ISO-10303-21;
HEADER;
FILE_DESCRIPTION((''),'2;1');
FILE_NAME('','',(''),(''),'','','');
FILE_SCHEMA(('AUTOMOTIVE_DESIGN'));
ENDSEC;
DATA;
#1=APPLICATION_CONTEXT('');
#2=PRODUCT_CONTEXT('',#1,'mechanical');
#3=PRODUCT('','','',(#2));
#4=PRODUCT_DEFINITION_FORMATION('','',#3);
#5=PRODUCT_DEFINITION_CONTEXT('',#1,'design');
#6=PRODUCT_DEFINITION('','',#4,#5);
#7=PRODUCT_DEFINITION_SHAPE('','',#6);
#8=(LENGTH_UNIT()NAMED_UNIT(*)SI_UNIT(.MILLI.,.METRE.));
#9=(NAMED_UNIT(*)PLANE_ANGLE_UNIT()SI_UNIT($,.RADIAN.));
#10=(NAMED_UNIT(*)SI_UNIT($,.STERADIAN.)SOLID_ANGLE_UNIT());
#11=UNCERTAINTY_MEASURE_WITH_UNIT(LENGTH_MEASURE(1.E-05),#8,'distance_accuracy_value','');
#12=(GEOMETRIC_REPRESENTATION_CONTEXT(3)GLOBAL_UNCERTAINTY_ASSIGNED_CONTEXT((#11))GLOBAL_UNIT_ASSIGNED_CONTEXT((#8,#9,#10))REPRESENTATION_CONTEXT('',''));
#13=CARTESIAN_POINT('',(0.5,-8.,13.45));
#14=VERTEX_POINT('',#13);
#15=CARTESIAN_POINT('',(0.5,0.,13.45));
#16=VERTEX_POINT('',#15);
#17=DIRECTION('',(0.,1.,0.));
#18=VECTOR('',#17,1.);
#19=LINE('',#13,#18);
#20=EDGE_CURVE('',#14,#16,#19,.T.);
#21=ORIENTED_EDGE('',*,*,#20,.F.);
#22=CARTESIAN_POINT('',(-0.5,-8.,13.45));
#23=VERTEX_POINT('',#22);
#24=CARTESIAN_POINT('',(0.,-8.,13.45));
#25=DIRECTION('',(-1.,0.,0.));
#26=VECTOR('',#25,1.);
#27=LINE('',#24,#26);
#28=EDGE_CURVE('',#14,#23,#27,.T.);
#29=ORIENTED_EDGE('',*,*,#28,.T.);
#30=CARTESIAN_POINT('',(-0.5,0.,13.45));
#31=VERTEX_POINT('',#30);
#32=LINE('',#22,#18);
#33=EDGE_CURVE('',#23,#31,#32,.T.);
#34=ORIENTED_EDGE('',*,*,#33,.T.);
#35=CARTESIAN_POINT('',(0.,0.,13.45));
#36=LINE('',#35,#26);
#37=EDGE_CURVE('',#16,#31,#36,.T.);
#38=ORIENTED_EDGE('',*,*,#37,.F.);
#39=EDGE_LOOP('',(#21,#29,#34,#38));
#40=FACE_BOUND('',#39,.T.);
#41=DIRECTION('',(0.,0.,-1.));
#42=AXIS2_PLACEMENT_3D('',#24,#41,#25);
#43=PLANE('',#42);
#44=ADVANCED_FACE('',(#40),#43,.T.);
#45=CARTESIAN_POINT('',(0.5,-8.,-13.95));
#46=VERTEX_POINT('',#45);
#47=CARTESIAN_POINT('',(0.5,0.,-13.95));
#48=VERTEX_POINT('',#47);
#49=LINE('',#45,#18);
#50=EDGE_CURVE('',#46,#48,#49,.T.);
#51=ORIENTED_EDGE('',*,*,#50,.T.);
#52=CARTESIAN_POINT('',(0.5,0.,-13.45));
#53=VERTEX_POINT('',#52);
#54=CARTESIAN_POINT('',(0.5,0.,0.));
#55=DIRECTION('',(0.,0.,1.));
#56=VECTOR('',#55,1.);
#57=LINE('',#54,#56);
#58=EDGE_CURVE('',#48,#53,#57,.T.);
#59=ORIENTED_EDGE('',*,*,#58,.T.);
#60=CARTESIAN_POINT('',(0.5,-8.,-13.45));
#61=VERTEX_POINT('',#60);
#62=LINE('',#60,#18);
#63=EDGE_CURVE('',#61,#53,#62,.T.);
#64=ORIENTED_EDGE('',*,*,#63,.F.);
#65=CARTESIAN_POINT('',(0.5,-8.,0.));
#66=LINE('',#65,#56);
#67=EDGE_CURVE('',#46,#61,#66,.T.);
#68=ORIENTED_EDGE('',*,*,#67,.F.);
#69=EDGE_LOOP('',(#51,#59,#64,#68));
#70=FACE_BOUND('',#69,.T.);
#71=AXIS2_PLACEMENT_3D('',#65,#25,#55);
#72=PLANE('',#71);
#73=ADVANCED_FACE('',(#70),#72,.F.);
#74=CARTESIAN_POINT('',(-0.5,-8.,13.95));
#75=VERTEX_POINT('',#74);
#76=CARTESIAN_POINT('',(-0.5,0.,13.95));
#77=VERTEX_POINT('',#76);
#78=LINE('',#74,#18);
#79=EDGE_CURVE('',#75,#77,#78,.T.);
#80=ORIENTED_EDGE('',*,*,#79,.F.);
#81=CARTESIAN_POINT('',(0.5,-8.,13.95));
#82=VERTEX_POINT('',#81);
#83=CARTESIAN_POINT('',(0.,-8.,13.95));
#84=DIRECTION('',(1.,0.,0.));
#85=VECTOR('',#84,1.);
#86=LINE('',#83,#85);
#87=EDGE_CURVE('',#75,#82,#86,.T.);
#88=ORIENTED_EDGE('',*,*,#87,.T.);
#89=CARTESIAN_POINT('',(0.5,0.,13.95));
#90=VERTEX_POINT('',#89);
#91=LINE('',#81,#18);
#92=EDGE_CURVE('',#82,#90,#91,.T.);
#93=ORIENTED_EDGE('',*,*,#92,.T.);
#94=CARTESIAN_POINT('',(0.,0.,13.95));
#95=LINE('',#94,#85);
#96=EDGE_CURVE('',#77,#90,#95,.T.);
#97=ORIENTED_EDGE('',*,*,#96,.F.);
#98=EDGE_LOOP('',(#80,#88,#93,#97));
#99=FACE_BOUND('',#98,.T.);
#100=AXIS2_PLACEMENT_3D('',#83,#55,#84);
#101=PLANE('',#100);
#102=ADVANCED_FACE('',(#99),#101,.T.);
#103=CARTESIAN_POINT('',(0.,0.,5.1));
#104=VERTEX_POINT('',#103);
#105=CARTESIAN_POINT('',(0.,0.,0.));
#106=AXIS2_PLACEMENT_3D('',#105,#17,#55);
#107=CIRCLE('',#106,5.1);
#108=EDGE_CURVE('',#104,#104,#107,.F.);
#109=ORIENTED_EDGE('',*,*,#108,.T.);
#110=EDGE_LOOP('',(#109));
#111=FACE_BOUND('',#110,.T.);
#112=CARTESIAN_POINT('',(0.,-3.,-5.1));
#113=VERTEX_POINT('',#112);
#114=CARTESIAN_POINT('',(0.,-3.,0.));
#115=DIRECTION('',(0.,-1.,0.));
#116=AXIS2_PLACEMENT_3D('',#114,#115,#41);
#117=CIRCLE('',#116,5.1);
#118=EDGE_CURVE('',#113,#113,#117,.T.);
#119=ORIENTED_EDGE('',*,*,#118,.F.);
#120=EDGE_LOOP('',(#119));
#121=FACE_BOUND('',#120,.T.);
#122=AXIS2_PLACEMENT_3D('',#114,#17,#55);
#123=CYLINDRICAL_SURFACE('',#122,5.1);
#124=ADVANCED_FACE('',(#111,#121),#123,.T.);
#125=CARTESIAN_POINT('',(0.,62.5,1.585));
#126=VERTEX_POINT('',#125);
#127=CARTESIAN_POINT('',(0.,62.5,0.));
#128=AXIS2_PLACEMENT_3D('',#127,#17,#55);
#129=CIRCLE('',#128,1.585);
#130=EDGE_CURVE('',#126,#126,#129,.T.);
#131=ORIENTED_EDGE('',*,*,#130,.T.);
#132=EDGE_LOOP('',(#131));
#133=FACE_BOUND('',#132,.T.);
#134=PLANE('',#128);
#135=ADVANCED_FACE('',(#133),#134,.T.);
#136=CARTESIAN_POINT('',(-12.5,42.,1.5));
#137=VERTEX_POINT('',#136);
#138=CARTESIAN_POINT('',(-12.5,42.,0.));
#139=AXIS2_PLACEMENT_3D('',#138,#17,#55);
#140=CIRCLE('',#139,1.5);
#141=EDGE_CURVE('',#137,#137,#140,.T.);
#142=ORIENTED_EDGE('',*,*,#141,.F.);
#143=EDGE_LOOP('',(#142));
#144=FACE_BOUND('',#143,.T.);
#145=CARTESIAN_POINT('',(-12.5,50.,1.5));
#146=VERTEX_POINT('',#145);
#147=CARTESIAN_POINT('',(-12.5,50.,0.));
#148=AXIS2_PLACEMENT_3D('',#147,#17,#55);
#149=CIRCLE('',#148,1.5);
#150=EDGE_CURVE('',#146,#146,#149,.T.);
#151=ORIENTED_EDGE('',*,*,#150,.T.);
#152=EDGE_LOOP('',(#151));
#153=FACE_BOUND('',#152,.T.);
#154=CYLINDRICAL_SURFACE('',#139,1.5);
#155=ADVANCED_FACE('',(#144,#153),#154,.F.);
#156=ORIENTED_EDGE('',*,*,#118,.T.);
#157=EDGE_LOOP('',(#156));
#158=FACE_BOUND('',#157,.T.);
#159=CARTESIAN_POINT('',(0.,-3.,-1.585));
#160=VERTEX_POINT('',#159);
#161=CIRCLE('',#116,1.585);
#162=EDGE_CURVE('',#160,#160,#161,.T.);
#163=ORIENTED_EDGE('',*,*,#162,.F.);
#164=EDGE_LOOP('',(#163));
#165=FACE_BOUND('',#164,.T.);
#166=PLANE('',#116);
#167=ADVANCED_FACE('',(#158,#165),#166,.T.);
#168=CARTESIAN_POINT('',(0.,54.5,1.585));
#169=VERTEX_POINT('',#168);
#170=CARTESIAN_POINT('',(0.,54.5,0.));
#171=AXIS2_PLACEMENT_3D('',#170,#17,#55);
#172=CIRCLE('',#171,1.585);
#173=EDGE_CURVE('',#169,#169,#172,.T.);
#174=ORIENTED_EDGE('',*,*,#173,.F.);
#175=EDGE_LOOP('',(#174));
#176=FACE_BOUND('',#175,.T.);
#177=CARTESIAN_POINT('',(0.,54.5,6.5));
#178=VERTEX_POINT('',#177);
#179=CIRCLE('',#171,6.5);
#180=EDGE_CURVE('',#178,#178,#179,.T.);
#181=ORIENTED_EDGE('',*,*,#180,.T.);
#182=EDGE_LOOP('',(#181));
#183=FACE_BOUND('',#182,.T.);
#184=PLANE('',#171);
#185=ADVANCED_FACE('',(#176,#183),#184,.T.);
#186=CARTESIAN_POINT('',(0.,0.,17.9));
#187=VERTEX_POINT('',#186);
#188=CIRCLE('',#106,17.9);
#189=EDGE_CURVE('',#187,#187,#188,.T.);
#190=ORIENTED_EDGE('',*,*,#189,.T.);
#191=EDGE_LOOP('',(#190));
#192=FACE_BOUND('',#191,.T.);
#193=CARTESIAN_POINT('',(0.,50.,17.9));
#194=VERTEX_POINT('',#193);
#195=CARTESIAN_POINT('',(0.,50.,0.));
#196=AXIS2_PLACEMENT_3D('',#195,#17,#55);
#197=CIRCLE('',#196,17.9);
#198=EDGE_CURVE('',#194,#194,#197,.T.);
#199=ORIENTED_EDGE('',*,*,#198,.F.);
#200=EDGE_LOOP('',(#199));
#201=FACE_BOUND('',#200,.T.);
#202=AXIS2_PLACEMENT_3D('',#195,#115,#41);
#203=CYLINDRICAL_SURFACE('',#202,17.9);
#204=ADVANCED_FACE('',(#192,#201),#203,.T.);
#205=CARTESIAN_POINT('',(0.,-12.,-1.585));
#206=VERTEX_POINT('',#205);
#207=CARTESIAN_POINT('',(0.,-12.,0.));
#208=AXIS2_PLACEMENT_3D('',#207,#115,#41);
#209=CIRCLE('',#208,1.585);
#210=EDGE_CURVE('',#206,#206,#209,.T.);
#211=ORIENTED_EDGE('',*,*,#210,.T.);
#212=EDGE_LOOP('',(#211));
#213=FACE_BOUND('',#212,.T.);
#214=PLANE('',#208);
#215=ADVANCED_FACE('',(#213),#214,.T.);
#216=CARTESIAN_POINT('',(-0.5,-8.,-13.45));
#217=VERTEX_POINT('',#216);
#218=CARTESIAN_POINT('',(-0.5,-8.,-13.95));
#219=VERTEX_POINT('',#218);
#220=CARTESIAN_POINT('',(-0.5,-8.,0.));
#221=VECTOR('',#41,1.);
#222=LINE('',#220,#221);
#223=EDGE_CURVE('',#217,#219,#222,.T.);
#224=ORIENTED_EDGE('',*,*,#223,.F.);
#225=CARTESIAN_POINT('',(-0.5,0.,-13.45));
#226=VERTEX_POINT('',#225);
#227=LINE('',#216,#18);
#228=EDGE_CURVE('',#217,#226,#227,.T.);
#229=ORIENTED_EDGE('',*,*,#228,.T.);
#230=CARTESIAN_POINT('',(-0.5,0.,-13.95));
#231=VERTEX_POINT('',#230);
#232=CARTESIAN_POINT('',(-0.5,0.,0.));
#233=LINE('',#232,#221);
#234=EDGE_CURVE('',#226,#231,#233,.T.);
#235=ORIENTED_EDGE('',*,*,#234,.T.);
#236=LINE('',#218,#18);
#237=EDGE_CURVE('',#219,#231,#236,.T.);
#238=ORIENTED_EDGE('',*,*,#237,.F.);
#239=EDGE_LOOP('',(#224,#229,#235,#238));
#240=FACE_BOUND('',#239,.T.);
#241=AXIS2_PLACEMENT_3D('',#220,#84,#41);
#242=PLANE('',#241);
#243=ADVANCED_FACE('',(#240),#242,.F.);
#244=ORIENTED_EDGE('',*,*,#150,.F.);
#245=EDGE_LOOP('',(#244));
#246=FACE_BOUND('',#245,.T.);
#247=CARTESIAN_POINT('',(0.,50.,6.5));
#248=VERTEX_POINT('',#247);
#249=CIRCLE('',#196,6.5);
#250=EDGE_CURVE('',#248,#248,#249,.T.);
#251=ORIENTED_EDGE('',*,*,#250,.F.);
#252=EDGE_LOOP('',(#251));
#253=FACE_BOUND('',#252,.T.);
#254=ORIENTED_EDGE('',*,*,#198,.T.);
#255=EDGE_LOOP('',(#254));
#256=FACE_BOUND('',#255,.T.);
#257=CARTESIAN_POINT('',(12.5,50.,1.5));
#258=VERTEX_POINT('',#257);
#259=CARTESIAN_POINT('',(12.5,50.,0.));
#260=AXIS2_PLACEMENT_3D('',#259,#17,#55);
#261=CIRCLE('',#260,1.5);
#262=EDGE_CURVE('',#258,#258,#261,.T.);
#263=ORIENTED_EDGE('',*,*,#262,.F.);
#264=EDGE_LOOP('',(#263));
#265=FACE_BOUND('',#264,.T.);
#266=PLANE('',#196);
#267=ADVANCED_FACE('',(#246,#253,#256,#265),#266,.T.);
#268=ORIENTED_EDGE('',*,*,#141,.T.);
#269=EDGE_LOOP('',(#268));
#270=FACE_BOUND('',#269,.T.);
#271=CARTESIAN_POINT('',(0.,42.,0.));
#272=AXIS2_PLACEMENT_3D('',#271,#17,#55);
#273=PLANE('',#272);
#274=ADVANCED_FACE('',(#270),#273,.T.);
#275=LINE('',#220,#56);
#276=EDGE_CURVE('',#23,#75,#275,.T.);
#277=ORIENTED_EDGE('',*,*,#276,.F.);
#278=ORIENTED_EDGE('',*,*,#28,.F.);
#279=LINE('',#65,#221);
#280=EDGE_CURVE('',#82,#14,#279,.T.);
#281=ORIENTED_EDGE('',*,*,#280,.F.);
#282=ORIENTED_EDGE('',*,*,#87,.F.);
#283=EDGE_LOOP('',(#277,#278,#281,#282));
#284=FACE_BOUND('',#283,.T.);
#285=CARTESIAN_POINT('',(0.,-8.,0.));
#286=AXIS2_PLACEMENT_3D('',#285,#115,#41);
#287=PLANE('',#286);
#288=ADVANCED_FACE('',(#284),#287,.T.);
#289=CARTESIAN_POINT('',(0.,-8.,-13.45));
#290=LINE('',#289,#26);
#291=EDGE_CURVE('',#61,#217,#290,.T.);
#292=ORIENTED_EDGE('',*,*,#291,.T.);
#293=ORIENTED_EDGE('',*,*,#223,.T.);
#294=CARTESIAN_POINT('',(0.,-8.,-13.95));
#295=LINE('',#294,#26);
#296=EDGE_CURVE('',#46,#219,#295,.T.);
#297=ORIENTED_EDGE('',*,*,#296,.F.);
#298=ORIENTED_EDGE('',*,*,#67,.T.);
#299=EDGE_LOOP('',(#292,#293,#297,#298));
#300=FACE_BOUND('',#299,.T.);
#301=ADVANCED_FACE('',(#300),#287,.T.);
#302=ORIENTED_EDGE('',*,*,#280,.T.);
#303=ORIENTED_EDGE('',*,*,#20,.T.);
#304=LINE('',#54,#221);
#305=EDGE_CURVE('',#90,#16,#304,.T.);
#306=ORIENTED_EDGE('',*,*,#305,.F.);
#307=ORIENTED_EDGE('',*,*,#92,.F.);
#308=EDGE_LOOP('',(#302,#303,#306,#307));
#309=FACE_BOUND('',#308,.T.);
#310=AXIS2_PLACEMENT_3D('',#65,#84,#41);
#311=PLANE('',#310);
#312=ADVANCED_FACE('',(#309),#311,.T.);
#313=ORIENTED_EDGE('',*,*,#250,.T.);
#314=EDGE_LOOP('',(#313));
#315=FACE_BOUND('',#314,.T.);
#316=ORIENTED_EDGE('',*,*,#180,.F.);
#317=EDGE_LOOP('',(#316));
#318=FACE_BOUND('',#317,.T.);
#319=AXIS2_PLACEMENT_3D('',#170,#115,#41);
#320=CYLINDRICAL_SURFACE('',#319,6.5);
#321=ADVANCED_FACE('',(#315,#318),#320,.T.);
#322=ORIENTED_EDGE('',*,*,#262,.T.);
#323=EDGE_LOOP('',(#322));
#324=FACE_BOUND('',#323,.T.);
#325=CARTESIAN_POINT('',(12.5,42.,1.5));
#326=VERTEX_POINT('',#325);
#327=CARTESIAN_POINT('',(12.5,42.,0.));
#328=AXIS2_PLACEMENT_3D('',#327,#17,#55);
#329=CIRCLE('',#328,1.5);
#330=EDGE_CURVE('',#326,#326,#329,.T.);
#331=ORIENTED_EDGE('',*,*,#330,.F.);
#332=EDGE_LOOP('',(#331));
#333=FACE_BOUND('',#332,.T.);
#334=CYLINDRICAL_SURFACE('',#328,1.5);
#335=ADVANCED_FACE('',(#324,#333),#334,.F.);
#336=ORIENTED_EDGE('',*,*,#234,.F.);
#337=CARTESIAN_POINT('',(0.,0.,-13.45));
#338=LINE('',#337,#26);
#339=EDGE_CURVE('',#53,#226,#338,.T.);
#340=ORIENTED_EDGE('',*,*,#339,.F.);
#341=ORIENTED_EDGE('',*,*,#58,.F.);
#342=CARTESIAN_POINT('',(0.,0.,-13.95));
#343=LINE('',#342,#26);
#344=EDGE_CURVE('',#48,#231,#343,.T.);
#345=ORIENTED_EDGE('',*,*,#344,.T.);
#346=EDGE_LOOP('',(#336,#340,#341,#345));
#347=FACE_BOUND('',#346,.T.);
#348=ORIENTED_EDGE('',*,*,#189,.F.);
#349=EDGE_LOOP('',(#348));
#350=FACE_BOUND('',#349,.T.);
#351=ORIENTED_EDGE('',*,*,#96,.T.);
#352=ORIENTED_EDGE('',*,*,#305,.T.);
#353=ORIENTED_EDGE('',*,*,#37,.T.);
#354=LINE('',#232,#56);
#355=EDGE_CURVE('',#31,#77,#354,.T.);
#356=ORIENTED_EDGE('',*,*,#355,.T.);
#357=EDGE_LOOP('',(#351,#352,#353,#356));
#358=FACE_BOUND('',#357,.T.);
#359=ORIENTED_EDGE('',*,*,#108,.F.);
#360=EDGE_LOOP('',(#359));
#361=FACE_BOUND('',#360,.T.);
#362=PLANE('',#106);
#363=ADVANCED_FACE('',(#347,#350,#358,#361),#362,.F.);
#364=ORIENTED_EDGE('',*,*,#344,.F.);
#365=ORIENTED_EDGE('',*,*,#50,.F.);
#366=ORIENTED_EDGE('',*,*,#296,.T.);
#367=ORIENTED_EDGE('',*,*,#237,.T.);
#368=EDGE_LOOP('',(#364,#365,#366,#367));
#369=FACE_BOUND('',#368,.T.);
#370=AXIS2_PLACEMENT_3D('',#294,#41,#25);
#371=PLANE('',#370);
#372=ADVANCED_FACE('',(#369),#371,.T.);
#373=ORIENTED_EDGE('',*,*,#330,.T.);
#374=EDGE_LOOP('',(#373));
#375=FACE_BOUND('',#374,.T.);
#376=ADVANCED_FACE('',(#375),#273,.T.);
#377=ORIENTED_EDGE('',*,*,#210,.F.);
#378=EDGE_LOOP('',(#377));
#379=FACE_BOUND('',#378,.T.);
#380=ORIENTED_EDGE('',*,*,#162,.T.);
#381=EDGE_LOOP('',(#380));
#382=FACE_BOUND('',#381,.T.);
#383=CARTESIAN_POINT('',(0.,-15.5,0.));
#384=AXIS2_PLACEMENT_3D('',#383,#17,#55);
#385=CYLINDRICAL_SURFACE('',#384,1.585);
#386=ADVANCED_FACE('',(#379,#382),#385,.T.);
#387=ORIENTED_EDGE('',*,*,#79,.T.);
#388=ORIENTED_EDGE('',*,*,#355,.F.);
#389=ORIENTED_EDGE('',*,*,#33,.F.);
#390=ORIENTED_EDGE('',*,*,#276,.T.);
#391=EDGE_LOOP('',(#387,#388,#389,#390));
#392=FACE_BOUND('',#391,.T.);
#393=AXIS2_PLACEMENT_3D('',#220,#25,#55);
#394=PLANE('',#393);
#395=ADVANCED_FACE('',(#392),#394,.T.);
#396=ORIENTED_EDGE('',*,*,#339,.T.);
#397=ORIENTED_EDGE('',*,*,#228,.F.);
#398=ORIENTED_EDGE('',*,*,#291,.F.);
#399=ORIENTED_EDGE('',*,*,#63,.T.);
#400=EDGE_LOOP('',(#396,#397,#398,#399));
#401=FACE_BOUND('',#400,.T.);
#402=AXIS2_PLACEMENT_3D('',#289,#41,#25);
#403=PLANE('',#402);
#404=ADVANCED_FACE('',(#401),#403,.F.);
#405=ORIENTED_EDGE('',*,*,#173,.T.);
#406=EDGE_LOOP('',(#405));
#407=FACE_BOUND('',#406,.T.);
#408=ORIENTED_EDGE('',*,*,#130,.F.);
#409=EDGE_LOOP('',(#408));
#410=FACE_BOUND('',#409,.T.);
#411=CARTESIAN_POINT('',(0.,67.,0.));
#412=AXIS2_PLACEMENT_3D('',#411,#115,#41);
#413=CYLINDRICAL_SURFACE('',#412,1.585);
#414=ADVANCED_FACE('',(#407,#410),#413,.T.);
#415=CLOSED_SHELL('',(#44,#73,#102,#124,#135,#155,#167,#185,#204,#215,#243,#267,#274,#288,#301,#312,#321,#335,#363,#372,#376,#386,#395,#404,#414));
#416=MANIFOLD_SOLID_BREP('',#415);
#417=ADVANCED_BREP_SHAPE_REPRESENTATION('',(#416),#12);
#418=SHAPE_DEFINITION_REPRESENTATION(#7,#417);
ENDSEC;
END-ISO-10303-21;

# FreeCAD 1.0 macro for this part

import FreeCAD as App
import Part
import Sketcher

V = App.Vector

doc = App.newDocument("Part")
body = doc.addObject("PartDesign::Body", "Body")

# Sketch on XZ plane
sketch1 = body.newObject("Sketcher::SketchObject", "Sketch")
sketch1.AttachmentSupport = (doc.getObject("XZ_Plane"), [""])
sketch1.MapMode = "FlatFace"
sketch1.addGeometry(Part.Circle(V(0, 0, 0), V(0, 0, 1), 17.9), False)
sketch1.addConstraint([
    Sketcher.Constraint("Coincident", 0, 3, -1, 1),
    Sketcher.Constraint("Diameter", 0, 35.8),
])
pad1 = body.newObject("PartDesign::Pad", "Pad")
pad1.Profile = sketch1
pad1.Length = 50
pad1.Reversed = True

# Sketch on XZ plane
sketch2 = body.newObject("Sketcher::SketchObject", "Sketch001")
sketch2.AttachmentSupport = (doc.getObject("XZ_Plane"), [""])
sketch2.MapMode = "FlatFace"
sketch2.AttachmentOffset = App.Placement(V(0, 0, -50), App.Rotation())
sketch2.addGeometry(Part.Circle(V(0, 0, 0), V(0, 0, 1), 6.5), False)
sketch2.addConstraint([
    Sketcher.Constraint("Coincident", 0, 3, -1, 1),
    Sketcher.Constraint("Diameter", 0, 13.0),
])
pad2 = body.newObject("PartDesign::Pad", "Pad001")
pad2.Profile = sketch2
pad2.Length = 4.5
pad2.Reversed = True

# Sketch on XZ plane
sketch3 = body.newObject("Sketcher::SketchObject", "Sketch002")
sketch3.AttachmentSupport = (doc.getObject("XZ_Plane"), [""])
sketch3.MapMode = "FlatFace"
sketch3.AttachmentOffset = App.Placement(V(0, 0, -54.5), App.Rotation())
sketch3.addGeometry(Part.Circle(V(0, 0, 0), V(0, 0, 1), 1.585), False)
sketch3.addConstraint([
    Sketcher.Constraint("Coincident", 0, 3, -1, 1),
    Sketcher.Constraint("Diameter", 0, 3.17),
])
pad3 = body.newObject("PartDesign::Pad", "Pad002")
pad3.Profile = sketch3
pad3.Length = 12.5
pad3.Reversed = True

# Sketch on XZ plane
sketch4 = body.newObject("Sketcher::SketchObject", "Sketch003")
sketch4.AttachmentSupport = (doc.getObject("XZ_Plane"), [""])
sketch4.MapMode = "FlatFace"
sketch4.addGeometry(Part.Circle(V(0, 0, 0), V(0, 0, 1), 5.1), False)
sketch4.addConstraint([
    Sketcher.Constraint("Coincident", 0, 3, -1, 1),
    Sketcher.Constraint("Diameter", 0, 10.2),
])
pad4 = body.newObject("PartDesign::Pad", "Pad003")
pad4.Profile = sketch4
pad4.Length = 3

# Sketch on XZ plane
sketch5 = body.newObject("Sketcher::SketchObject", "Sketch004")
sketch5.AttachmentSupport = (doc.getObject("XZ_Plane"), [""])
sketch5.MapMode = "FlatFace"
sketch5.AttachmentOffset = App.Placement(V(0, 0, 15.5), App.Rotation())
sketch5.addGeometry(Part.Circle(V(0, 0, 0), V(0, 0, 1), 1.585), False)
sketch5.addConstraint([
    Sketcher.Constraint("Coincident", 0, 3, -1, 1),
    Sketcher.Constraint("Diameter", 0, 3.17),
])
pad5 = body.newObject("PartDesign::Pad", "Pad004")
pad5.Profile = sketch5
pad5.Length = 12.5
pad5.Reversed = True

# Sketch on XZ plane
sketch6 = body.newObject("Sketcher::SketchObject", "Sketch005")
sketch6.AttachmentSupport = (doc.getObject("XZ_Plane"), [""])
sketch6.MapMode = "FlatFace"
sketch6.addGeometry([
    Part.LineSegment(V(-0.5, -13.45, 0), V(-0.5, -13.95, 0)),  # 0
    Part.LineSegment(V(-0.5, -13.95, 0), V(0.5, -13.95, 0)),  # 1
    Part.LineSegment(V(0.5, -13.95, 0), V(0.5, -13.45, 0)),  # 2
    Part.LineSegment(V(0.5, -13.45, 0), V(-0.5, -13.45, 0)),  # 3
    Part.LineSegment(V(-0.5, 13.95, 0), V(-0.5, 13.45, 0)),  # 4
    Part.LineSegment(V(-0.5, 13.45, 0), V(0.5, 13.45, 0)),  # 5
    Part.LineSegment(V(0.5, 13.45, 0), V(0.5, 13.95, 0)),  # 6
    Part.LineSegment(V(0.5, 13.95, 0), V(-0.5, 13.95, 0)),  # 7
], False)
sketch6.addConstraint([
    Sketcher.Constraint("Coincident", 0, 2, 1, 1),
    Sketcher.Constraint("Coincident", 1, 2, 2, 1),
    Sketcher.Constraint("Coincident", 2, 2, 3, 1),
    Sketcher.Constraint("Coincident", 3, 2, 0, 1),
    Sketcher.Constraint("Coincident", 4, 2, 5, 1),
    Sketcher.Constraint("Coincident", 5, 2, 6, 1),
    Sketcher.Constraint("Coincident", 6, 2, 7, 1),
    Sketcher.Constraint("Coincident", 7, 2, 4, 1),
    Sketcher.Constraint("Vertical", 0),
    Sketcher.Constraint("Horizontal", 1),
    Sketcher.Constraint("Vertical", 2),
    Sketcher.Constraint("Horizontal", 3),
    Sketcher.Constraint("Vertical", 4),
    Sketcher.Constraint("Horizontal", 5),
    Sketcher.Constraint("Vertical", 6),
    Sketcher.Constraint("Horizontal", 7),
    Sketcher.Constraint("Symmetric", 2, 2, 4, 2, -1, 1),
    Sketcher.Constraint("Symmetric", 0, 2, 6, 2, -1, 1),
    Sketcher.Constraint("Vertical", 3, 2, 4, 2),
    Sketcher.Constraint("DistanceX", 1, 1, 1, 2, 1.0),
    Sketcher.Constraint("DistanceY", 0, 2, 0, 1, 0.5),
    Sketcher.Constraint("DistanceY", 3, 2, 4, 2, 26.9),
])
pad6 = body.newObject("PartDesign::Pad", "Pad005")
pad6.Profile = sketch6
pad6.Length = 8

# Sketch on XZ plane
sketch7 = body.newObject("Sketcher::SketchObject", "Sketch006")
sketch7.AttachmentSupport = (doc.getObject("XZ_Plane"), [""])
sketch7.MapMode = "FlatFace"
sketch7.AttachmentOffset = App.Placement(V(0, 0, -50), App.Rotation())
sketch7.addGeometry([
    Part.Circle(V(12.5, 0, 0), V(0, 0, 1), 1.5),
    Part.Circle(V(-12.5, 0, 0), V(0, 0, 1), 1.5),
], False)
sketch7.addConstraint([
    Sketcher.Constraint("Equal", 0, 1),
    Sketcher.Constraint("Symmetric", 0, 3, 1, 3, -1, 1),
    Sketcher.Constraint("PointOnObject", 0, 3, -1),
    Sketcher.Constraint("Diameter", 0, 3.0),
    Sketcher.Constraint("DistanceX", 1, 3, 0, 3, 25.0),
])
pocket1 = body.newObject("PartDesign::Pocket", "Pocket")
pocket1.Profile = sketch7
pocket1.Length = 8
pocket1.Reversed = True

# Sketch on XZ plane
sketch8 = body.newObject("Sketcher::SketchObject", "Sketch007")
sketch8.AttachmentSupport = (doc.getObject("XZ_Plane"), [""])
sketch8.MapMode = "FlatFace"
sketch8.AttachmentOffset = App.Placement(V(0, 0, -62.5), App.Rotation())
sketch8.addGeometry(Part.Circle(V(0, 0, 0), V(0, 0, 1), 1.585), False)
sketch8.addConstraint([
    Sketcher.Constraint("Coincident", 0, 3, -1, 1),
    Sketcher.Constraint("Diameter", 0, 3.17),
])
pocket2 = body.newObject("PartDesign::Pocket", "Pocket001")
pocket2.Profile = sketch8
pocket2.Length = 4.5

# Sketch on XZ plane
sketch9 = body.newObject("Sketcher::SketchObject", "Sketch008")
sketch9.AttachmentSupport = (doc.getObject("XZ_Plane"), [""])
sketch9.MapMode = "FlatFace"
sketch9.AttachmentOffset = App.Placement(V(0, 0, 15.5), App.Rotation())
sketch9.addGeometry(Part.Circle(V(0, 0, 0), V(0, 0, 1), 1.585), False)
sketch9.addConstraint([
    Sketcher.Constraint("Coincident", 0, 3, -1, 1),
    Sketcher.Constraint("Diameter", 0, 3.17),
])
pocket3 = body.newObject("PartDesign::Pocket", "Pocket002")
pocket3.Profile = sketch9
pocket3.Length = 3.5

doc.recompute()
